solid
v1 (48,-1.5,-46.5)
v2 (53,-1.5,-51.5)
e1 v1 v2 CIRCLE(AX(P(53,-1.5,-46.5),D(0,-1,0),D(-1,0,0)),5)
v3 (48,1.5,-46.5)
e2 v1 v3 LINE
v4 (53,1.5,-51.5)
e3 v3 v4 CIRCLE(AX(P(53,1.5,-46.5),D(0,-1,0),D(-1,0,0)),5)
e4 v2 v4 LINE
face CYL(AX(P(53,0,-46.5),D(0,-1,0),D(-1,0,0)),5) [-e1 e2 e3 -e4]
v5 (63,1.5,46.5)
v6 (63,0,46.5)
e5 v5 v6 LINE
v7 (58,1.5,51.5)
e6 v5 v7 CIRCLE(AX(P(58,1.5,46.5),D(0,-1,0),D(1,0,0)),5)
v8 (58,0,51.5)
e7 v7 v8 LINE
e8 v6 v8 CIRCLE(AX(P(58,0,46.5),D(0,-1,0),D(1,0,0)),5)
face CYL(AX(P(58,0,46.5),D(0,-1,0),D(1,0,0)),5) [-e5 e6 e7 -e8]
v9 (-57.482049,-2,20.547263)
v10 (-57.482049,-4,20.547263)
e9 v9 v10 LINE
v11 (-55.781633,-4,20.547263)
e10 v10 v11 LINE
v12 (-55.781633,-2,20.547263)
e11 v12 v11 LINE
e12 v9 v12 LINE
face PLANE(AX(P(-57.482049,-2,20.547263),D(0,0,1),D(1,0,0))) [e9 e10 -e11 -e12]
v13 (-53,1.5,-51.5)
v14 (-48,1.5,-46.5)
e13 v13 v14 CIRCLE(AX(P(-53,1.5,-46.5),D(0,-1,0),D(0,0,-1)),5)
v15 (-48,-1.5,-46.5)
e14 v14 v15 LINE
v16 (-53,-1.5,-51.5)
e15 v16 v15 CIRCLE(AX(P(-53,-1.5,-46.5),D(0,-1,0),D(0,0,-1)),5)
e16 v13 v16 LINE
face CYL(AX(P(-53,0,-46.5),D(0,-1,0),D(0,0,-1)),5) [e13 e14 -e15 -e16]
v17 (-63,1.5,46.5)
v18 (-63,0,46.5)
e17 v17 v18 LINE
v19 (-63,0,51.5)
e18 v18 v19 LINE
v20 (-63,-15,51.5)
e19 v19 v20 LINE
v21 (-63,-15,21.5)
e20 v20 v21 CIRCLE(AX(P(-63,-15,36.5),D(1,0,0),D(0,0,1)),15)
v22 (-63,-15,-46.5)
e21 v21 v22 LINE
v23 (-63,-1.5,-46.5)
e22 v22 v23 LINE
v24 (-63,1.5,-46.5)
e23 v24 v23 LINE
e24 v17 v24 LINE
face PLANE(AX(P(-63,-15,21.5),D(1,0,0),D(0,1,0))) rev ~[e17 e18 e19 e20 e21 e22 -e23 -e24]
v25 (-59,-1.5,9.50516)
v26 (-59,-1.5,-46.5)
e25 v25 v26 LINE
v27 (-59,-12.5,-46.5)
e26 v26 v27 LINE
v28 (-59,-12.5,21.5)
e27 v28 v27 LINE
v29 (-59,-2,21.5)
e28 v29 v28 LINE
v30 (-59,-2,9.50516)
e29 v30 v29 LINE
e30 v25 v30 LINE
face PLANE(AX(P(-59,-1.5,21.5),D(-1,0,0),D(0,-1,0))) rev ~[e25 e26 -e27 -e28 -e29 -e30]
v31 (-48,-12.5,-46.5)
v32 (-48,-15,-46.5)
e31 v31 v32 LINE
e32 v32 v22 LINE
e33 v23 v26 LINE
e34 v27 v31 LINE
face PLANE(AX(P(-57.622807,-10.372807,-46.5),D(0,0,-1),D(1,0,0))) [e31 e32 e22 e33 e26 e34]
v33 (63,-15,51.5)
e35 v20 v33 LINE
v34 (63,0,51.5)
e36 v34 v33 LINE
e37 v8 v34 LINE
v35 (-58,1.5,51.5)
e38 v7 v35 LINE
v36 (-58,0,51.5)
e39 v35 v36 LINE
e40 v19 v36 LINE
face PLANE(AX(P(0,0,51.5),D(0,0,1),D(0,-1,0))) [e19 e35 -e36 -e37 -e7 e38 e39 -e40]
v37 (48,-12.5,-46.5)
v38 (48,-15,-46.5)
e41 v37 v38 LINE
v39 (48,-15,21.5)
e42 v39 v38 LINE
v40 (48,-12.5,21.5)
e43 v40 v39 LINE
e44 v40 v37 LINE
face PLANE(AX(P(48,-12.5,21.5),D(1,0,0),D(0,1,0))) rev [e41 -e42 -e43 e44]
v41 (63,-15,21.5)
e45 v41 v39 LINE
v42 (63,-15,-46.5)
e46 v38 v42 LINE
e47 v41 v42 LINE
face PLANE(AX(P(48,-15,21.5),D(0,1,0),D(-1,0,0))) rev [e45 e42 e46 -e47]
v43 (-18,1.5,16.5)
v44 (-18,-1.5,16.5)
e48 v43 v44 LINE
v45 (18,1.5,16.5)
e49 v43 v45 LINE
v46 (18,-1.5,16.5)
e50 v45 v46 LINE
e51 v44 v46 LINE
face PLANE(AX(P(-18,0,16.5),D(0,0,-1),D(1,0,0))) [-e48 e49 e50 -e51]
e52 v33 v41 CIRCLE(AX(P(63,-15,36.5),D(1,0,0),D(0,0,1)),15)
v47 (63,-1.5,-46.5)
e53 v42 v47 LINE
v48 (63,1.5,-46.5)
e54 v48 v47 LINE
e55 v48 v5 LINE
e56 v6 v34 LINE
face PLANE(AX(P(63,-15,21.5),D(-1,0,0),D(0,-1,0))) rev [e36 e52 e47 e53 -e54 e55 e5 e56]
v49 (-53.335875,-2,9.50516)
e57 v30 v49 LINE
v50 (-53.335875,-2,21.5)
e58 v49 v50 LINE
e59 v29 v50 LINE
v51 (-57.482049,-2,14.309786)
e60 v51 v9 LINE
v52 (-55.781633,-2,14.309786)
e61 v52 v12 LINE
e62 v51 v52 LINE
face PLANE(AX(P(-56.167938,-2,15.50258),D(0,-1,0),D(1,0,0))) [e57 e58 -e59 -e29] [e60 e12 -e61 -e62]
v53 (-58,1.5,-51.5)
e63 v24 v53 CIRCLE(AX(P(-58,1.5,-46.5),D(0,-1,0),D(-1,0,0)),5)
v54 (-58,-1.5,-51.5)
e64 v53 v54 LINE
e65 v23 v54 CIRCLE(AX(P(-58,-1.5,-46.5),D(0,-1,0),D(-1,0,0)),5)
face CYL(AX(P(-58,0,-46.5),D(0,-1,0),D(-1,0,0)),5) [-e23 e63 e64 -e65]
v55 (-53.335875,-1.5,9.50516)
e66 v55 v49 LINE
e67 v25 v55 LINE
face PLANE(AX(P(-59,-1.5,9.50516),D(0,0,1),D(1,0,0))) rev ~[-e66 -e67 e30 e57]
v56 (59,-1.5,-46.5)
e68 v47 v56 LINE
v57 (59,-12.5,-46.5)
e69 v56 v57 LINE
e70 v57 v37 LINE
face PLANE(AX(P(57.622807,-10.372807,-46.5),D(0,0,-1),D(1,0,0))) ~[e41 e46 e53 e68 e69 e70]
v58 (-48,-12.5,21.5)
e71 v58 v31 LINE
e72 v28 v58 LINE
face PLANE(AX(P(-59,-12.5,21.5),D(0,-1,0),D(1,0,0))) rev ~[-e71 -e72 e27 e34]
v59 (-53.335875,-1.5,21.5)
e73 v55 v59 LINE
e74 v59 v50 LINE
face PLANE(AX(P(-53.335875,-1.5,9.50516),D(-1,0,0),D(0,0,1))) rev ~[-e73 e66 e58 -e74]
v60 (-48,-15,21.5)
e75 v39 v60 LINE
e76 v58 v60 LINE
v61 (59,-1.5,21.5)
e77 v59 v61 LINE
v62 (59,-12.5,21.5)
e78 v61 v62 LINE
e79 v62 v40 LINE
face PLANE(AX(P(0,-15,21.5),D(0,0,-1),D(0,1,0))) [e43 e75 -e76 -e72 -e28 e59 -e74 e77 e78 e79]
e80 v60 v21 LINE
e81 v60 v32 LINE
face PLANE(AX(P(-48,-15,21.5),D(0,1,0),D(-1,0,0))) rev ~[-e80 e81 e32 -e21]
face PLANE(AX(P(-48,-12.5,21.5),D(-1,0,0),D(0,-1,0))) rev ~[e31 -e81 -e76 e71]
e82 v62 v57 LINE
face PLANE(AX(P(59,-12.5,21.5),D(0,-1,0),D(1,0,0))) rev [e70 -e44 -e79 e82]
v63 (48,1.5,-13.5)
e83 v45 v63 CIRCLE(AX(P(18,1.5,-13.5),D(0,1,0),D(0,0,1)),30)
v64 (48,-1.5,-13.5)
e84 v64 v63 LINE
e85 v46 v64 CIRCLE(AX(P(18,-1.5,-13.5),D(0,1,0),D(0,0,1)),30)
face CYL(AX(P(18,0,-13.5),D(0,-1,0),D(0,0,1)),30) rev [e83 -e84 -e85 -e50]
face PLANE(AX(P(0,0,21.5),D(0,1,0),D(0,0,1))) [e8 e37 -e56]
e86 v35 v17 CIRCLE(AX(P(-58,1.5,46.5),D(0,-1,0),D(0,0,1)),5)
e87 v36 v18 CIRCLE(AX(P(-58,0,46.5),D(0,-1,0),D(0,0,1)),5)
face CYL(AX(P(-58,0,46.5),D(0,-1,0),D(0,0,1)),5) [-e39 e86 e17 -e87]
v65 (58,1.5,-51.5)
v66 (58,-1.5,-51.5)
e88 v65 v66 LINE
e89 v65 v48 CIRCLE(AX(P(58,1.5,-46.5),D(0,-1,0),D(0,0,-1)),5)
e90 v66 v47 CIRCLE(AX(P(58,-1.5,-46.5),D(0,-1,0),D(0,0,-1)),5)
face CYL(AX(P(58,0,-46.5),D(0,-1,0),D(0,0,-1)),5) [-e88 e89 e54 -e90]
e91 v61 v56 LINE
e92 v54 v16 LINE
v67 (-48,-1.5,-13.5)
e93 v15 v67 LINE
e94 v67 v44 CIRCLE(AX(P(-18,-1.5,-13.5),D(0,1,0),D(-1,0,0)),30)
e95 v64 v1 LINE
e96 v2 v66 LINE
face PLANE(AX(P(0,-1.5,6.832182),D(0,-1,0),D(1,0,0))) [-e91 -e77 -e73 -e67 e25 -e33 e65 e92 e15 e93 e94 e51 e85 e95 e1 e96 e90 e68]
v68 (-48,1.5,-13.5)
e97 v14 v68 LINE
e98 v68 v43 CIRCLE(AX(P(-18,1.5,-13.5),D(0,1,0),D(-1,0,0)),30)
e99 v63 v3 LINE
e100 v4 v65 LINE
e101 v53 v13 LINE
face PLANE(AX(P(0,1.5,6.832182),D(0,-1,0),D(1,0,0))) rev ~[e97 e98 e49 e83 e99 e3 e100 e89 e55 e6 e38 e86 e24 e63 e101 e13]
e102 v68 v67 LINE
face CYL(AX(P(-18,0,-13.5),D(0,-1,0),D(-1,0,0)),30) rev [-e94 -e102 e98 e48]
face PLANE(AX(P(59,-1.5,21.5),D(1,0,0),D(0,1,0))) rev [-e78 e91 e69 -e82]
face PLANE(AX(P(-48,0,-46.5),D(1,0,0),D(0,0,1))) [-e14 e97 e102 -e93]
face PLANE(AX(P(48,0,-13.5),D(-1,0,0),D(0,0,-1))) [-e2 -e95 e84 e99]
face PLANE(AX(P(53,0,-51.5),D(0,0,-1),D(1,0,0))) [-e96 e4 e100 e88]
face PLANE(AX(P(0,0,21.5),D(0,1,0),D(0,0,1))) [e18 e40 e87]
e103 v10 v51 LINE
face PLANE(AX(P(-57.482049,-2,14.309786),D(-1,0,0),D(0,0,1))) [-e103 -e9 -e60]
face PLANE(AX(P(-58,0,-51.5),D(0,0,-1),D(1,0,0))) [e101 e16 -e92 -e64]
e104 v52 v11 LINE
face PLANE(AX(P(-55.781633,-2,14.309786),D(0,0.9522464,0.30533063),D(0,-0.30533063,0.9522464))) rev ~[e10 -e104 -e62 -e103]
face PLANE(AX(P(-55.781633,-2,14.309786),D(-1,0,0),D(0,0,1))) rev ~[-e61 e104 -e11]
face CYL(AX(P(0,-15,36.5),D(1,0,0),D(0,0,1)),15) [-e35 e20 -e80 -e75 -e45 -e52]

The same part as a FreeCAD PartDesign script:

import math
import FreeCAD as App
import Part
import Sketcher

V = App.Vector
Q = App.Units.Quantity

doc = App.newDocument("Part")
body = doc.addObject("PartDesign::Body", "Body")

# Sketch on XZ plane
sketch1 = body.newObject("Sketcher::SketchObject", "Sketch")
sketch1.AttachmentSupport = (doc.getObject("XZ_Plane"), [""])
sketch1.MapMode = "FlatFace"
sketch1.addGeometry(Part.LineSegment(V(53, -52, 0), V(58, -52, 0)), False)
sketch1.addGeometry(Part.ArcOfCircle(Part.Circle(V(58, -46, 0), V(0, 0, 1), 5), math.radians(-90), math.radians(0)), False)
sketch1.addGeometry(Part.LineSegment(V(63, -46, 0), V(63, 46, 0)), False)
sketch1.addGeometry(Part.ArcOfCircle(Part.Circle(V(58, 46, 0), V(0, 0, 1), 5), math.radians(0), math.radians(90)), False)
sketch1.addGeometry(Part.LineSegment(V(58, 52, 0), V(-58, 52, 0)), False)
sketch1.addGeometry(Part.ArcOfCircle(Part.Circle(V(-58, 46, 0), V(0, 0, 1), 5), math.radians(90), math.radians(180)), False)
sketch1.addGeometry(Part.LineSegment(V(-63, 46, 0), V(-63, -46, 0)), False)
sketch1.addGeometry(Part.ArcOfCircle(Part.Circle(V(-58, -46, 0), V(0, 0, 1), 5), math.radians(180), math.radians(270)), False)
sketch1.addGeometry(Part.LineSegment(V(-58, -52, 0), V(-53, -52, 0)), False)
sketch1.addGeometry(Part.ArcOfCircle(Part.Circle(V(-53, -46, 0), V(0, 0, 1), 5), math.radians(-90), math.radians(0)), False)
sketch1.addGeometry(Part.LineSegment(V(-48, -46, 0), V(-48, -14, 0)), False)
sketch1.addGeometry(Part.ArcOfCircle(Part.Circle(V(-18, -14, 0), V(0, 0, 1), 30), math.radians(90), math.radians(180)), False)
sketch1.addGeometry(Part.LineSegment(V(-18, 16, 0), V(18, 16, 0)), False)
sketch1.addGeometry(Part.ArcOfCircle(Part.Circle(V(18, -14, 0), V(0, 0, 1), 30), math.radians(0), math.radians(90)), False)
sketch1.addGeometry(Part.LineSegment(V(48, -14, 0), V(48, -46, 0)), False)
sketch1.addGeometry(Part.ArcOfCircle(Part.Circle(V(53, -46, 0), V(0, 0, 1), 5), math.radians(180), math.radians(270)), False)
sketch1.addConstraint(Sketcher.Constraint("Tangent", 0, 2, 1, 1))
sketch1.addConstraint(Sketcher.Constraint("Tangent", 1, 2, 2, 1))
sketch1.addConstraint(Sketcher.Constraint("Tangent", 2, 2, 3, 1))
sketch1.addConstraint(Sketcher.Constraint("Tangent", 3, 2, 4, 1))
sketch1.addConstraint(Sketcher.Constraint("Tangent", 4, 2, 5, 1))
sketch1.addConstraint(Sketcher.Constraint("Tangent", 5, 2, 6, 1))
sketch1.addConstraint(Sketcher.Constraint("Tangent", 6, 2, 7, 1))
sketch1.addConstraint(Sketcher.Constraint("Tangent", 7, 2, 8, 1))
sketch1.addConstraint(Sketcher.Constraint("Tangent", 8, 2, 9, 1))
sketch1.addConstraint(Sketcher.Constraint("Tangent", 9, 2, 10, 1))
sketch1.addConstraint(Sketcher.Constraint("Tangent", 10, 2, 11, 2))
sketch1.addConstraint(Sketcher.Constraint("Tangent", 11, 1, 12, 1))
sketch1.addConstraint(Sketcher.Constraint("Tangent", 12, 2, 13, 2))
sketch1.addConstraint(Sketcher.Constraint("Tangent", 13, 1, 14, 1))
sketch1.addConstraint(Sketcher.Constraint("Tangent", 14, 2, 15, 1))
sketch1.addConstraint(Sketcher.Constraint("Tangent", 15, 2, 0, 1))
sketch1.addConstraint(Sketcher.Constraint("Horizontal", 0))
sketch1.addConstraint(Sketcher.Constraint("Vertical", 2))
sketch1.addConstraint(Sketcher.Constraint("Horizontal", 4))
sketch1.addConstraint(Sketcher.Constraint("Vertical", 6))
sketch1.addConstraint(Sketcher.Constraint("Horizontal", 8))
sketch1.addConstraint(Sketcher.Constraint("Vertical", 10))
sketch1.addConstraint(Sketcher.Constraint("Horizontal", 12))
sketch1.addConstraint(Sketcher.Constraint("Vertical", 14))
sketch1.addConstraint(Sketcher.Constraint("Equal", 1, 3))
sketch1.addConstraint(Sketcher.Constraint("Equal", 3, 5))
sketch1.addConstraint(Sketcher.Constraint("Equal", 5, 7))
sketch1.addConstraint(Sketcher.Constraint("Equal", 7, 9))
sketch1.addConstraint(Sketcher.Constraint("Equal", 11, 13))
sketch1.addConstraint(Sketcher.Constraint("Equal", 9, 15))
sketch1.addConstraint(Sketcher.Constraint("Symmetric", 1, 3, 5, 3, -1, 1))
sketch1.addConstraint(Sketcher.Constraint("Symmetric", 9, 3, 15, 3, -2))
sketch1.addConstraint(Sketcher.Constraint("Radius", 1, Q("5 mm")))
sketch1.addConstraint(Sketcher.Constraint("Radius", 11, Q("30 mm")))
sketch1.addConstraint(Sketcher.Constraint("DistanceX", 0, 1, 0, 2, Q("5 mm")))
sketch1.addConstraint(Sketcher.Constraint("DistanceX", 4, 2, 4, 1, Q("116 mm")))
sketch1.addConstraint(Sketcher.Constraint("DistanceY", 2, 1, 2, 2, Q("93 mm")))
sketch1.addConstraint(Sketcher.Constraint("DistanceY", 10, 1, 10, 2, Q("33 mm")))
pad1 = body.newObject("PartDesign::Pad", "Pad")
pad1.Profile = sketch1
pad1.Length = 3
pad1.Midplane = True

# Sketch on YZ plane
sketch2 = body.newObject("Sketcher::SketchObject", "Sketch001")
sketch2.AttachmentSupport = (doc.getObject("YZ_Plane"), [""])
sketch2.MapMode = "FlatFace"
sketch2.addGeometry(Part.LineSegment(V(0, 22, 0), V(0, 52, 0)), False)
sketch2.addGeometry(Part.LineSegment(V(0, 52, 0), V(-15, 52, 0)), False)
sketch2.addGeometry(Part.ArcOfCircle(Part.Circle(V(-15, 36, 0), V(0, 0, 1), 15), math.radians(90), math.radians(270)), False)
sketch2.addGeometry(Part.LineSegment(V(-15, 22, 0), V(0, 22, 0)), False)
sketch2.addConstraint(Sketcher.Constraint("Coincident", 0, 2, 1, 1))
sketch2.addConstraint(Sketcher.Constraint("Tangent", 1, 2, 2, 1))
sketch2.addConstraint(Sketcher.Constraint("Tangent", 2, 2, 3, 1))
sketch2.addConstraint(Sketcher.Constraint("Coincident", 3, 2, 0, 1))
sketch2.addConstraint(Sketcher.Constraint("Vertical", 0))
sketch2.addConstraint(Sketcher.Constraint("Horizontal", 1))
sketch2.addConstraint(Sketcher.Constraint("Horizontal", 3))
sketch2.addConstraint(Sketcher.Constraint("PointOnObject", 0, 2, -2))
sketch2.addConstraint(Sketcher.Constraint("Radius", 2, Q("15 mm")))
sketch2.addConstraint(Sketcher.Constraint("DistanceX", 1, 2, 1, 1, Q("15 mm")))
sketch2.addConstraint(Sketcher.Constraint("DistanceY", -1, 1, 2, 3, Q("36.5 mm")))
pad2 = body.newObject("PartDesign::Pad", "Pad001")
pad2.Profile = sketch2
pad2.Length = 126
pad2.Midplane = True

# Sketch on XY plane
sketch3 = body.newObject("Sketcher::SketchObject", "Sketch002")
sketch3.AttachmentSupport = (doc.getObject("XY_Plane"), [""])
sketch3.MapMode = "FlatFace"
sketch3.AttachmentOffset = App.Placement(V(0, 0, 21.5), App.Rotation())
sketch3.addGeometry(Part.LineSegment(V(-48, -15, 0), V(-63, -15, 0)), False)
sketch3.addGeometry(Part.LineSegment(V(-63, -15, 0), V(-63, -1.5, 0)), False)
sketch3.addGeometry(Part.LineSegment(V(-63, -1.5, 0), V(-59, -1.5, 0)), False)
sketch3.addGeometry(Part.LineSegment(V(-59, -1.5, 0), V(-59, -12.5, 0)), False)
sketch3.addGeometry(Part.LineSegment(V(-59, -12.5, 0), V(-48, -12.5, 0)), False)
sketch3.addGeometry(Part.LineSegment(V(-48, -12.5, 0), V(-48, -15, 0)), False)
sketch3.addConstraint(Sketcher.Constraint("Coincident", 0, 2, 1, 1))
sketch3.addConstraint(Sketcher.Constraint("Coincident", 1, 2, 2, 1))
sketch3.addConstraint(Sketcher.Constraint("Coincident", 2, 2, 3, 1))
sketch3.addConstraint(Sketcher.Constraint("Coincident", 3, 2, 4, 1))
sketch3.addConstraint(Sketcher.Constraint("Coincident", 4, 2, 5, 1))
sketch3.addConstraint(Sketcher.Constraint("Coincident", 5, 2, 0, 1))
sketch3.addConstraint(Sketcher.Constraint("Horizontal", 0))
sketch3.addConstraint(Sketcher.Constraint("Vertical", 1))
sketch3.addConstraint(Sketcher.Constraint("Horizontal", 2))
sketch3.addConstraint(Sketcher.Constraint("Vertical", 3))
sketch3.addConstraint(Sketcher.Constraint("Horizontal", 4))
sketch3.addConstraint(Sketcher.Constraint("Vertical", 5))
sketch3.addConstraint(Sketcher.Constraint("Equal", 4, 3))
sketch3.addConstraint(Sketcher.Constraint("DistanceX", 0, 2, 0, 1, Q("15 mm")))
sketch3.addConstraint(Sketcher.Constraint("DistanceX", 2, 1, 2, 2, Q("4 mm")))
sketch3.addConstraint(Sketcher.Constraint("DistanceY", 1, 1, 1, 2, Q("13.5 mm")))
sketch3.addConstraint(Sketcher.Constraint("DistanceX", 0, 2, -1, 1, Q("63 mm")))
sketch3.addConstraint(Sketcher.Constraint("DistanceY", 0, 2, -1, 1, Q("15 mm")))
pad3 = body.newObject("PartDesign::Pad", "Pad002")
pad3.Profile = sketch3
pad3.Length = 68
pad3.Reversed = True
body2 = doc.addObject("PartDesign::Body", "Body001")
doc.recompute()

body2.BaseFeature = body
doc.recompute()

mirroring = doc.addObject("Part::Mirroring", "Mirroring")
mirroring.Source = body
mirroring.Base = V(0, 0, 0)
mirroring.Normal = V(1, 0, 0)
body3 = doc.addObject("PartDesign::Body", "Body002")
body3.BaseFeature = mirroring
boolean = body2.newObject("PartDesign::Boolean", "Boolean")
boolean.Type = "Fuse"
boolean.addObjects([body3])
doc.recompute()

# Sketch on XZ plane
sketch4 = body2.newObject("Sketcher::SketchObject", "Sketch003")
sketch4.AttachmentSupport = (doc.getObject("XZ_Plane001"), [""])
sketch4.MapMode = "FlatFace"
sketch4.AttachmentOffset = App.Placement(V(0, 0, 1.5), App.Rotation())
sketch4.addGeometry(Part.LineSegment(V(-59, 22, 0), V(-59, 10, 0)), False)
sketch4.addGeometry(Part.LineSegment(V(-59, 10, 0), V(-53, 10, 0)), False)
sketch4.addGeometry(Part.LineSegment(V(-53, 10, 0), V(-53, 22, 0)), False)
sketch4.addGeometry(Part.LineSegment(V(-53, 22, 0), V(-59, 22, 0)), False)
sketch4.addConstraint(Sketcher.Constraint("Coincident", 0, 2, 1, 1))
sketch4.addConstraint(Sketcher.Constraint("Coincident", 1, 2, 2, 1))
sketch4.addConstraint(Sketcher.Constraint("Coincident", 2, 2, 3, 1))
sketch4.addConstraint(Sketcher.Constraint("Coincident", 3, 2, 0, 1))
sketch4.addConstraint(Sketcher.Constraint("Vertical", 0))
sketch4.addConstraint(Sketcher.Constraint("Horizontal", 1))
sketch4.addConstraint(Sketcher.Constraint("Vertical", 2))
sketch4.addConstraint(Sketcher.Constraint("Horizontal", 3))
sketch4.addConstraint(Sketcher.Constraint("DistanceX", 0, 2, -1, 1, Q("59 mm")))
sketch4.addConstraint(Sketcher.Constraint("DistanceY", -1, 1, 2, 2, Q("21.5 mm")))
sketch4.addConstraint(Sketcher.Constraint("DistanceY", 0, 2, 0, 1, Q("11.99484 mm")))
sketch4.addConstraint(Sketcher.Constraint("DistanceX", 1, 1, 1, 2, Q("5.664125 mm")))
pad4 = body2.newObject("PartDesign::Pad", "Pad003")
pad4.Profile = sketch4
pad4.Length = 0.5

# Sketch on XZ plane
sketch5 = body2.newObject("Sketcher::SketchObject", "Sketch004")
sketch5.AttachmentSupport = (doc.getObject("XZ_Plane001"), [""])
sketch5.MapMode = "FlatFace"
sketch5.AttachmentOffset = App.Placement(V(0, 0, 2), App.Rotation())
sketch5.addGeometry(Part.LineSegment(V(-57.5, 20.5, 0), V(-57.5, 14.3, 0)), False)
sketch5.addGeometry(Part.LineSegment(V(-57.5, 14.3, 0), V(-55.8, 14.3, 0)), False)
sketch5.addGeometry(Part.LineSegment(V(-55.8, 14.3, 0), V(-55.8, 20.5, 0)), False)
sketch5.addGeometry(Part.LineSegment(V(-55.8, 20.5, 0), V(-57.5, 20.5, 0)), False)
sketch5.addConstraint(Sketcher.Constraint("Coincident", 0, 2, 1, 1))
sketch5.addConstraint(Sketcher.Constraint("Coincident", 1, 2, 2, 1))
sketch5.addConstraint(Sketcher.Constraint("Coincident", 2, 2, 3, 1))
sketch5.addConstraint(Sketcher.Constraint("Coincident", 3, 2, 0, 1))
sketch5.addConstraint(Sketcher.Constraint("Vertical", 0))
sketch5.addConstraint(Sketcher.Constraint("Horizontal", 1))
sketch5.addConstraint(Sketcher.Constraint("Vertical", 2))
sketch5.addConstraint(Sketcher.Constraint("Horizontal", 3))
sketch5.addConstraint(Sketcher.Constraint("DistanceX", 1, 1, 1, 2, Q("1.700416 mm")))
sketch5.addConstraint(Sketcher.Constraint("DistanceY", 0, 2, 0, 1, Q("6.237477 mm")))
sketch5.addConstraint(Sketcher.Constraint("DistanceX", 0, 2, -1, 1, Q("57.482049 mm")))
sketch5.addConstraint(Sketcher.Constraint("DistanceY", -1, 1, 0, 2, Q("14.309786 mm")))
pad5 = body2.newObject("PartDesign::Pad", "Pad004")
pad5.Profile = sketch5
pad5.Length = 2

# Sketch on YZ plane
sketch6 = body2.newObject("Sketcher::SketchObject", "Sketch005")
sketch6.AttachmentSupport = (doc.getObject("YZ_Plane001"), [""])
sketch6.MapMode = "FlatFace"
sketch6.AttachmentOffset = App.Placement(V(0, 0, -55.781633), App.Rotation())
sketch6.addGeometry(Part.LineSegment(V(-2, 14.3, 0), V(-4, 20.5, 0)), False)
sketch6.addGeometry(Part.LineSegment(V(-4, 20.5, 0), V(-4, 14.3, 0)), False)
sketch6.addGeometry(Part.LineSegment(V(-4, 14.3, 0), V(-2, 14.3, 0)), False)
sketch6.addConstraint(Sketcher.Constraint("Coincident", 0, 2, 1, 1))
sketch6.addConstraint(Sketcher.Constraint("Coincident", 1, 2, 2, 1))
sketch6.addConstraint(Sketcher.Constraint("Coincident", 2, 2, 0, 1))
sketch6.addConstraint(Sketcher.Constraint("Vertical", 1))
sketch6.addConstraint(Sketcher.Constraint("Horizontal", 2))
sketch6.addConstraint(Sketcher.Constraint("DistanceX", 2, 1, 2, 2, Q("2 mm")))
sketch6.addConstraint(Sketcher.Constraint("DistanceX", 0, 2, -1, 1, Q("4 mm")))
sketch6.addConstraint(Sketcher.Constraint("DistanceY", 1, 2, 1, 1, Q("6.237477 mm")))
sketch6.addConstraint(Sketcher.Constraint("DistanceY", -1, 1, 0, 2, Q("20.547263 mm")))
pocket1 = body2.newObject("PartDesign::Pocket", "Pocket")
pocket1.Profile = sketch6
pocket1.Length = 3
mirroring.Visibility = False

doc.recompute()
